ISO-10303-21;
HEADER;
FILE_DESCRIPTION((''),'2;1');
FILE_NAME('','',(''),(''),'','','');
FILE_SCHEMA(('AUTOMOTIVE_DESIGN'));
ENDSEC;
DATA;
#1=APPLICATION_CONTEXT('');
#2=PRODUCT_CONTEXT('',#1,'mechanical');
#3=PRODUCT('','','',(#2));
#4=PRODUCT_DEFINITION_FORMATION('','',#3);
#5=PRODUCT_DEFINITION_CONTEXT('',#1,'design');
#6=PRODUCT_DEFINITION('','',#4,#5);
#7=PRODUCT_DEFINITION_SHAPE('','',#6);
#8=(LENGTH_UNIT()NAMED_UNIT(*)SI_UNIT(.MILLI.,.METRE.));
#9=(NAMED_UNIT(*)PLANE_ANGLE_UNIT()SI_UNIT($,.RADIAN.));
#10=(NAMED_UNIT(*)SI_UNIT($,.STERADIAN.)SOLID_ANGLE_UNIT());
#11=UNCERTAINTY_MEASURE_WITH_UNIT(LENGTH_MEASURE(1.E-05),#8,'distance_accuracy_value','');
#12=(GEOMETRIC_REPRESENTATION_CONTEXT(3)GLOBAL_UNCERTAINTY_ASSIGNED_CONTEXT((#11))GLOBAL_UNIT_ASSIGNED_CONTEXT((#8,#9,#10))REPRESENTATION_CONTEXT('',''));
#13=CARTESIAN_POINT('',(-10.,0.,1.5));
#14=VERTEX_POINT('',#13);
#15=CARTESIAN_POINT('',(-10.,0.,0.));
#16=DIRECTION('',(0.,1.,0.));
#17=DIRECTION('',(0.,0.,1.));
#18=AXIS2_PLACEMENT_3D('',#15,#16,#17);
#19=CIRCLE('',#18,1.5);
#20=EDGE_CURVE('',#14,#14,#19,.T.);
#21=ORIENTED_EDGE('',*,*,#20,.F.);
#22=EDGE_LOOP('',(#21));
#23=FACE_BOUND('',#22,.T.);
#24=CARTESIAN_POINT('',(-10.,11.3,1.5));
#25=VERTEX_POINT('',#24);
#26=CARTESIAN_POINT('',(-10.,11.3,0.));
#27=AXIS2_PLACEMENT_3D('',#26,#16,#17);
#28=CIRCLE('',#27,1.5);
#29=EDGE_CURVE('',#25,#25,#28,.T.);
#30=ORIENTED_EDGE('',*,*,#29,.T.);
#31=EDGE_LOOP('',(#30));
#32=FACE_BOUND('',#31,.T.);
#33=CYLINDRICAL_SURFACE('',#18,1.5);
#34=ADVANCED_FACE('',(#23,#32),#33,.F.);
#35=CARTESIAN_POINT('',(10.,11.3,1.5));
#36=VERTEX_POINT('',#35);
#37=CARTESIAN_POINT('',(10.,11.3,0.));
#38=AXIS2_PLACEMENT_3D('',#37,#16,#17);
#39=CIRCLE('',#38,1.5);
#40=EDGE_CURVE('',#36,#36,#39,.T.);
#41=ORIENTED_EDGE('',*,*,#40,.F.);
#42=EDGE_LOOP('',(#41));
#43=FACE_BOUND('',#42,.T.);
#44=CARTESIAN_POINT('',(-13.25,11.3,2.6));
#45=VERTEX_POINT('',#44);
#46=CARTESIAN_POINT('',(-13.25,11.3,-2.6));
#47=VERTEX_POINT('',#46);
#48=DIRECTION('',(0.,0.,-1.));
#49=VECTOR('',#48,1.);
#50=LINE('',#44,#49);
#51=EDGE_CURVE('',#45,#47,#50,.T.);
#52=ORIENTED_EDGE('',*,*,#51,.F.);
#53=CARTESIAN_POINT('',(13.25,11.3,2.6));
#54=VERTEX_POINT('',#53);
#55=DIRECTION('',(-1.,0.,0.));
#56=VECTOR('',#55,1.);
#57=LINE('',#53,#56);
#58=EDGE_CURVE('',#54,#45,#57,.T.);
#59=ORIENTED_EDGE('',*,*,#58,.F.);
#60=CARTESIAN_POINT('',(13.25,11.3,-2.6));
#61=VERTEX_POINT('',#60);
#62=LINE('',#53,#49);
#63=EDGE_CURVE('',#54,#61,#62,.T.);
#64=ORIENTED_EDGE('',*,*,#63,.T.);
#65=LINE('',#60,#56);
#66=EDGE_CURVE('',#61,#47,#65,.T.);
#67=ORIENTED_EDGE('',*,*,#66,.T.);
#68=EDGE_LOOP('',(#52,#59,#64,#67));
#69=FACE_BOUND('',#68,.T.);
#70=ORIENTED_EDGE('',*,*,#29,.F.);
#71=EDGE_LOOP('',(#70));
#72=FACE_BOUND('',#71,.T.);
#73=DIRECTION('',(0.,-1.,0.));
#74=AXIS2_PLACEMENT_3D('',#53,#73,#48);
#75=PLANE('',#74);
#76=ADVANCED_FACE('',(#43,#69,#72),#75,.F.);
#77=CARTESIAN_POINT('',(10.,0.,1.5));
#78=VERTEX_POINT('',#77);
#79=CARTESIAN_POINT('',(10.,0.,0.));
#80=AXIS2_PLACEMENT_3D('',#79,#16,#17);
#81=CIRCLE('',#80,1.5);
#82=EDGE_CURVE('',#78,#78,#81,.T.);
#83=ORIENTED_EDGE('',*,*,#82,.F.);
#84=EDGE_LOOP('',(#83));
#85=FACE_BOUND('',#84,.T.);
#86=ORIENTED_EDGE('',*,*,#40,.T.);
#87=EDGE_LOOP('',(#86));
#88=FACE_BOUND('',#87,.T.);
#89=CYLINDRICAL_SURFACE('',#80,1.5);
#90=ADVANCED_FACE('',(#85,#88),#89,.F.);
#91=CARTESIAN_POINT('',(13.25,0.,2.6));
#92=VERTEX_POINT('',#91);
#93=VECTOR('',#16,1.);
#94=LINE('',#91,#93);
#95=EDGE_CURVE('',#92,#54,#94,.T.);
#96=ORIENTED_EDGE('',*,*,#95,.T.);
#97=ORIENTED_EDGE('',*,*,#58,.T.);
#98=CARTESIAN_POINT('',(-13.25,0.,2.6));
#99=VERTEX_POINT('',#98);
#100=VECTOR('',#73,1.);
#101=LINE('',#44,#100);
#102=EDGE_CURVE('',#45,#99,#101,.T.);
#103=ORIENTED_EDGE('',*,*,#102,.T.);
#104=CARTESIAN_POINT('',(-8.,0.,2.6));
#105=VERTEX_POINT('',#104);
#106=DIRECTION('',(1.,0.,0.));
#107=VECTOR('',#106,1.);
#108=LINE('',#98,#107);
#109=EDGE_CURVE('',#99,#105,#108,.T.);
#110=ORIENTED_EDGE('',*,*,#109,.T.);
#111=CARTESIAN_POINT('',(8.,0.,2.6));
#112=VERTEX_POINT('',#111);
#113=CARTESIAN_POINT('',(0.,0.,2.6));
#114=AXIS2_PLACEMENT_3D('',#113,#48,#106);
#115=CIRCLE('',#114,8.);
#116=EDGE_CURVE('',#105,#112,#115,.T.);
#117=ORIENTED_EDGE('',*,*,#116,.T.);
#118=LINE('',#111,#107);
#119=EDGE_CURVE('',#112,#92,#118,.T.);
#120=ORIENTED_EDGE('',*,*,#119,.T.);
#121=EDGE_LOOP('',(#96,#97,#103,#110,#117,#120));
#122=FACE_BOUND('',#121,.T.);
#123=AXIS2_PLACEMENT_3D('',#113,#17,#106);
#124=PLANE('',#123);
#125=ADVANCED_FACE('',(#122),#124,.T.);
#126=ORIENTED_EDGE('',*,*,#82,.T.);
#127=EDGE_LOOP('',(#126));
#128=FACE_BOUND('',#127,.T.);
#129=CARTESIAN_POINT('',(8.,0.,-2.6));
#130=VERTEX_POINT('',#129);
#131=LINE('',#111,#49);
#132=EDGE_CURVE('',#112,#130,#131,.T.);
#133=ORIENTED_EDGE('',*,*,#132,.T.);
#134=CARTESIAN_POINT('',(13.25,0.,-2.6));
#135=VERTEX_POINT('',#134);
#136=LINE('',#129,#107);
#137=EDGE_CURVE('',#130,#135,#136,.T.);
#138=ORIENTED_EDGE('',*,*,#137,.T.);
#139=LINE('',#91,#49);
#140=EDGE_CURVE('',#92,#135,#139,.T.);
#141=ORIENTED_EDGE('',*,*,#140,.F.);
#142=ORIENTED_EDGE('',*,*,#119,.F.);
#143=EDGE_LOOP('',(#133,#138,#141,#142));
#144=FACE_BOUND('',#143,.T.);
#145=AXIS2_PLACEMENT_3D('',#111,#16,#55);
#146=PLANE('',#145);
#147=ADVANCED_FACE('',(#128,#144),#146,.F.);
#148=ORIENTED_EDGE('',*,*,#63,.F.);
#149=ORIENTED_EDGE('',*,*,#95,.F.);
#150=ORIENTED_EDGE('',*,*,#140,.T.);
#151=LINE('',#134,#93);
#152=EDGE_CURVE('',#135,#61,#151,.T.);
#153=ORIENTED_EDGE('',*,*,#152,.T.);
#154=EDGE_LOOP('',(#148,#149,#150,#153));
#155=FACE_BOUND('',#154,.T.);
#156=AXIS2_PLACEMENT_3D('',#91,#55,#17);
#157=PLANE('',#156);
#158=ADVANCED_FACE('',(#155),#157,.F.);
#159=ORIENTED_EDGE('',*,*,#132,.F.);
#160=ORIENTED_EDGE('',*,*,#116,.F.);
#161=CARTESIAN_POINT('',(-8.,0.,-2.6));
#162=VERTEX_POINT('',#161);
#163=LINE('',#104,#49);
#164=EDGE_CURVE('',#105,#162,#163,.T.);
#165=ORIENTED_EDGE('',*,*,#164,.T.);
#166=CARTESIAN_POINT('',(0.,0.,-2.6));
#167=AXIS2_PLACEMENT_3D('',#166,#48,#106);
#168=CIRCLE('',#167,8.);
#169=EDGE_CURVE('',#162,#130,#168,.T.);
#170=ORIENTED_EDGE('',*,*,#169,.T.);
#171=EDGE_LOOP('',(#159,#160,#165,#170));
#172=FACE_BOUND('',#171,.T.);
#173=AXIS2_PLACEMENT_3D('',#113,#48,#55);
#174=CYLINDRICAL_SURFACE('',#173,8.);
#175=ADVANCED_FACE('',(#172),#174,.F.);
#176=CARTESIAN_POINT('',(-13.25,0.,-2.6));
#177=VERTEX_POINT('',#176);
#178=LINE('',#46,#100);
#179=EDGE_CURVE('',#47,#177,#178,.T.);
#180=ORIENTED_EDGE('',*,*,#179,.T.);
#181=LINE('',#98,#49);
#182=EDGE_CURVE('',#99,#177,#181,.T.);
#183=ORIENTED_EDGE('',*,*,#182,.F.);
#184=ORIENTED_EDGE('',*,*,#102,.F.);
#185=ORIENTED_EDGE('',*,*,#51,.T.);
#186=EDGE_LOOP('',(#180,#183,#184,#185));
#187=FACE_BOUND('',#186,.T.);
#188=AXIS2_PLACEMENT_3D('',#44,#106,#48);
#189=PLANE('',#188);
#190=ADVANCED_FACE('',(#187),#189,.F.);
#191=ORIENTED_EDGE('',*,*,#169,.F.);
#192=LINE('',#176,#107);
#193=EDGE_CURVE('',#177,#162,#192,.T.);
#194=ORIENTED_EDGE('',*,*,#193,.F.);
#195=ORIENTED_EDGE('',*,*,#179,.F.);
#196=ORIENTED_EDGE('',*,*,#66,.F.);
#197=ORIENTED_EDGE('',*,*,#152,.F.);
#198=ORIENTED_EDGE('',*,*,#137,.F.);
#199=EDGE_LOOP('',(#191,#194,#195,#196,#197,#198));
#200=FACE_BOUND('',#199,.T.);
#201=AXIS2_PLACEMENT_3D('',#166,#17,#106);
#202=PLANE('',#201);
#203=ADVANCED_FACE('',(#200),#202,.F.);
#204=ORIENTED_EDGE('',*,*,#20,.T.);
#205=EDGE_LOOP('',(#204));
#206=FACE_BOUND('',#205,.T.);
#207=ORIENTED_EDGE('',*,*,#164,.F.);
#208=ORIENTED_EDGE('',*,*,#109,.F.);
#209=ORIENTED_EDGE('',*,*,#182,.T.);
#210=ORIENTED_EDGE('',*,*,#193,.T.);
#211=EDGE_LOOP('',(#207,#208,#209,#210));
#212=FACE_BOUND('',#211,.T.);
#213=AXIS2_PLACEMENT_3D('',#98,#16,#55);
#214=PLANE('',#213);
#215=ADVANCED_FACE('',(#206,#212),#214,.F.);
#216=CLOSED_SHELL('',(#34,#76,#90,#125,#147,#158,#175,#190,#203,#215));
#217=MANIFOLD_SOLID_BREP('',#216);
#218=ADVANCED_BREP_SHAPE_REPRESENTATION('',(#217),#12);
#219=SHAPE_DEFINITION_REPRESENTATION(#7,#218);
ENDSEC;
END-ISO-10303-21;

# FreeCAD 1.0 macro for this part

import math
import FreeCAD as App
import Part
import Sketcher
from FreeCAD import Vector

doc = App.newDocument("Part")
body = doc.addObject("PartDesign::Body", "Body")

# Sketch on XY plane
sketch1 = doc.addObject("Sketcher::SketchObject", "Sketch")
body.addObject(sketch1)
sketch1.AttachmentSupport = (doc.XY_Plane, [""])
sketch1.MapMode = "FlatFace"
sketch1.addGeometry([
    Part.LineSegment(Vector(8, 0, 0), Vector(13.25, 0, 0)),  # 0
    Part.LineSegment(Vector(13.25, 0, 0), Vector(13.25, 11.3, 0)),  # 1
    Part.LineSegment(Vector(13.25, 11.3, 0), Vector(-13.25, 11.3, 0)),  # 2
    Part.LineSegment(Vector(-13.25, 11.3, 0), Vector(-13.25, 0, 0)),  # 3
    Part.LineSegment(Vector(-13.25, 0, 0), Vector(-8, 0, 0)),  # 4
    Part.ArcOfCircle(Part.Circle(Vector(0, 0, 0), Vector(0, 0, 1), 8), math.radians(0), math.radians(180)),  # 5
], False)
sketch1.addConstraint([
    Sketcher.Constraint("Coincident", 0, 2, 1, 1),
    Sketcher.Constraint("Coincident", 1, 2, 2, 1),
    Sketcher.Constraint("Coincident", 2, 2, 3, 1),
    Sketcher.Constraint("Coincident", 3, 2, 4, 1),
    Sketcher.Constraint("Coincident", 4, 2, 5, 2),
    Sketcher.Constraint("Coincident", 5, 1, 0, 1),
    Sketcher.Constraint("Horizontal", 0),
    Sketcher.Constraint("Vertical", 1),
    Sketcher.Constraint("Horizontal", 2),
    Sketcher.Constraint("Vertical", 3),
    Sketcher.Constraint("Horizontal", 4),
    Sketcher.Constraint("Coincident", 5, 3, -1, 1),
    Sketcher.Constraint("Symmetric", 0, 2, 3, 2, -1, 1),
    Sketcher.Constraint("PointOnObject", 0, 2, -1),
    Sketcher.Constraint("Radius", 5, 8.0),
    Sketcher.Constraint("DistanceX", 2, 2, 2, 1, 26.5),
    Sketcher.Constraint("DistanceY", 1, 1, 1, 2, 11.3),
])
pad1 = doc.addObject("PartDesign::Pad", "Pad")
body.addObject(pad1)
pad1.Profile = sketch1
pad1.Length = 5.2
pad1.Midplane = True

# Sketch on XZ plane
sketch2 = doc.addObject("Sketcher::SketchObject", "Sketch001")
body.addObject(sketch2)
sketch2.AttachmentSupport = (doc.XZ_Plane, [""])
sketch2.MapMode = "FlatFace"
sketch2.AttachmentOffset = App.Placement(Vector(0, 0, -11.3), App.Rotation())
sketch2.addGeometry([
    Part.Circle(Vector(-10, 0, 0), Vector(0, 0, 1), 1.5),
    Part.Circle(Vector(10, 0, 0), Vector(0, 0, 1), 1.5),
], False)
sketch2.addConstraint([
    Sketcher.Constraint("Equal", 0, 1),
    Sketcher.Constraint("Symmetric", 0, 3, 1, 3, -1, 1),
    Sketcher.Constraint("PointOnObject", 0, 3, -1),
    Sketcher.Constraint("Diameter", 0, 3.0),
    Sketcher.Constraint("DistanceX", 0, 3, -1, 1, 10.0),
])
pocket1 = doc.addObject("PartDesign::Pocket", "Pocket")
body.addObject(pocket1)
pocket1.Profile = sketch2
pocket1.Type = "ThroughAll"
pocket1.Reversed = True

doc.recompute()
